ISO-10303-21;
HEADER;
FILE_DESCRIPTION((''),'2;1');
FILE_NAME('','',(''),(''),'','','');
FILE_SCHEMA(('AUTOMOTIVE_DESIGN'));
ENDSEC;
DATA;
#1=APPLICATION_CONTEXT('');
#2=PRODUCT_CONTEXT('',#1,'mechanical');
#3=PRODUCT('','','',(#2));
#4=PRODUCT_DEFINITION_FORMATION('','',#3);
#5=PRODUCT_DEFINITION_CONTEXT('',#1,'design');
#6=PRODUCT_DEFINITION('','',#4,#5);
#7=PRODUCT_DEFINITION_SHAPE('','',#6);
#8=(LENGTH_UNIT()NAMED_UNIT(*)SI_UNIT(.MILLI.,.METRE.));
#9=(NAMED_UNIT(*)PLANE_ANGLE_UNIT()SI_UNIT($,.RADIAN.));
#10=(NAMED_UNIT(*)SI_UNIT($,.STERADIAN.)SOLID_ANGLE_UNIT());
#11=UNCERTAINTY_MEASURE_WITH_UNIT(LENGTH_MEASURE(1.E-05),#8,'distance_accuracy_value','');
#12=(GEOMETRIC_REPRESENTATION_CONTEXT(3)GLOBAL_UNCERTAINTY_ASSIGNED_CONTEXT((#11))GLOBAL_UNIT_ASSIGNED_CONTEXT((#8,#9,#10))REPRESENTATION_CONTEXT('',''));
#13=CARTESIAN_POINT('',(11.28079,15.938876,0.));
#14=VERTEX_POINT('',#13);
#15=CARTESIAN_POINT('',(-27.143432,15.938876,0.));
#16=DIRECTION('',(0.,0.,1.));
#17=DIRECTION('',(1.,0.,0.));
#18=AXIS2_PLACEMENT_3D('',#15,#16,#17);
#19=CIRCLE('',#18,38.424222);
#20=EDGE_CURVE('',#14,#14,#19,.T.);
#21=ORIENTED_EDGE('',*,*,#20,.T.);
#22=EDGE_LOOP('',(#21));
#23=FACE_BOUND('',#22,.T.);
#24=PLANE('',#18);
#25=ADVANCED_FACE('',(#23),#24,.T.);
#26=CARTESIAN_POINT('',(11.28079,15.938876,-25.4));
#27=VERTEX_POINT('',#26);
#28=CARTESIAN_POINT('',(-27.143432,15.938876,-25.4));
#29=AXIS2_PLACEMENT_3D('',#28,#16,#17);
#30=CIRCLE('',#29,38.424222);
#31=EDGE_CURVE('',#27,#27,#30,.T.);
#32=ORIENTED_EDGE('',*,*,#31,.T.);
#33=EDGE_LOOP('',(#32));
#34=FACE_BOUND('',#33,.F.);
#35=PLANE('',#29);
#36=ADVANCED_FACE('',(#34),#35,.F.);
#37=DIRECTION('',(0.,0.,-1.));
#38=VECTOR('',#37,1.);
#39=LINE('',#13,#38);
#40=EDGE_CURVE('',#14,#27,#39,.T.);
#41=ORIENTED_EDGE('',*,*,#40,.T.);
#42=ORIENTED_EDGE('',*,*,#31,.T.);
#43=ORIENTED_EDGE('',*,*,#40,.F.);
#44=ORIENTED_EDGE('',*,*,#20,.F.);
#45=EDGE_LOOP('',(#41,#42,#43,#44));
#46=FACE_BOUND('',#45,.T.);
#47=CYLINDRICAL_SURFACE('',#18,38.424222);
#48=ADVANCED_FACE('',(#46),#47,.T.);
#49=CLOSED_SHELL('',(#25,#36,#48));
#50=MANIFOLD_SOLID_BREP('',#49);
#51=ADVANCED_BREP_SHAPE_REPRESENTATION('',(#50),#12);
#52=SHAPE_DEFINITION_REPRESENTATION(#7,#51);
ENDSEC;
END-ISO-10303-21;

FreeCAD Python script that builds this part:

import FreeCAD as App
import Part
import Sketcher

V = App.Vector
Q = App.Units.Quantity

doc = App.newDocument("Part")
body = doc.addObject("PartDesign::Body", "Body")

# Sketch on XY plane
sketch1 = body.newObject("Sketcher::SketchObject", "Sketch")
sketch1.AttachmentSupport = (doc.getObject("XY_Plane"), [""])
sketch1.MapMode = "FlatFace"
sketch1.addGeometry(Part.Circle(V(-27.143432, 15.938876, 0), V(0, 0, 1), 38.424222), False)
sketch1.addConstraint([
    Sketcher.Constraint("Diameter", 0, Q("76.848444 mm")),
    Sketcher.Constraint("DistanceX", 0, 3, -1, 1, Q("27.143432 mm")),
    Sketcher.Constraint("DistanceY", -1, 1, 0, 3, Q("15.938876 mm")),
])
pad1 = body.newObject("PartDesign::Pad", "Pad")
pad1.Profile = sketch1
pad1.Length = Q("1 in")
pad1.Reversed = True

doc.recompute()
